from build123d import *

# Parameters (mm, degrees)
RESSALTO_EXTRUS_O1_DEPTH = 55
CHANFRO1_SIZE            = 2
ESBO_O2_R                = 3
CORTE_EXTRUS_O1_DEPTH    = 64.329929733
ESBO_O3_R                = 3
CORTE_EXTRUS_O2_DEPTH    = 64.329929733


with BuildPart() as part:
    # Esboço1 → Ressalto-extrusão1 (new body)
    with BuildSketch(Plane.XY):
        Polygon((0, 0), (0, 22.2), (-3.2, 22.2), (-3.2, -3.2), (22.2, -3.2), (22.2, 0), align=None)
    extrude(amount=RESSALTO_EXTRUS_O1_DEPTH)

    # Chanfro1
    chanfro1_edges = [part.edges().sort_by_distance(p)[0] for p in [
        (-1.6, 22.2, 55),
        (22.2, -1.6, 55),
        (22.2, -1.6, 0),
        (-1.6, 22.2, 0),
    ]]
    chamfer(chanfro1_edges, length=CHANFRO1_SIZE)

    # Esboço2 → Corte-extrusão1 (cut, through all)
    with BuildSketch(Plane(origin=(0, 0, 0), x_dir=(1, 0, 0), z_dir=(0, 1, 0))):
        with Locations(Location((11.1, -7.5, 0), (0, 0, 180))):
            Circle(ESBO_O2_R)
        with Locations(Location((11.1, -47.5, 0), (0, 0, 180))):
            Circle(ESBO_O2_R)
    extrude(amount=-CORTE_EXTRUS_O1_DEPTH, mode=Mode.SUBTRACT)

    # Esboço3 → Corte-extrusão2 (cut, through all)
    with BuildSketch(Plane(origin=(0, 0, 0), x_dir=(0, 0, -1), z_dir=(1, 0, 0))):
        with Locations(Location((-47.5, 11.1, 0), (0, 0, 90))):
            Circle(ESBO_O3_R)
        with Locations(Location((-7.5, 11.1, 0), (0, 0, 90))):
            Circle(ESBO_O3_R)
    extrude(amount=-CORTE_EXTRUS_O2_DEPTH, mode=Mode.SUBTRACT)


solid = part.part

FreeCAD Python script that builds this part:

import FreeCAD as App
import Part
import Sketcher
from FreeCAD import Vector
Q = App.Units.Quantity


def edges_at(feature, points):
    """Names of the edges that pass closest to the given points."""
    edges = feature.Shape.Edges
    near = lambda p: min(range(len(edges)), key=lambda i: edges[i].distToShape(Part.Vertex(*p))[0])
    return sorted({f"Edge{near(p) + 1}" for p in points})

doc = App.newDocument("Part")
body = doc.addObject("PartDesign::Body", "Body")

sketch1 = body.newObject("Sketcher::SketchObject", "Sketch")
sketch1.AttachmentSupport = (doc.getObject("XY_Plane"), [""])
sketch1.MapMode = "FlatFace"
sketch1.addGeometry([
    Part.LineSegment(Vector(0, 0, 0), Vector(0, 22.2, 0)),
    Part.LineSegment(Vector(0, 22.2, 0), Vector(-3.2, 22.2, 0)),
    Part.LineSegment(Vector(-3.2, 22.2, 0), Vector(-3.2, -3.2, 0)),
    Part.LineSegment(Vector(-3.2, -3.2, 0), Vector(22.2, -3.2, 0)),
    Part.LineSegment(Vector(22.2, -3.2, 0), Vector(22.2, 0, 0)),
    Part.LineSegment(Vector(22.2, 0, 0), Vector(0, 0, 0)),
], False)
sketch1.addConstraint([
    Sketcher.Constraint("Coincident", 0, 2, 1, 1),
    Sketcher.Constraint("Coincident", 1, 2, 2, 1),
    Sketcher.Constraint("Coincident", 2, 2, 3, 1),
    Sketcher.Constraint("Coincident", 3, 2, 4, 1),
    Sketcher.Constraint("Coincident", 4, 2, 5, 1),
    Sketcher.Constraint("Coincident", 5, 2, 0, 1),
    Sketcher.Constraint("Vertical", 0),
    Sketcher.Constraint("Horizontal", 1),
    Sketcher.Constraint("Vertical", 2),
    Sketcher.Constraint("Horizontal", 3),
    Sketcher.Constraint("Vertical", 4),
    Sketcher.Constraint("Horizontal", 5),
    Sketcher.Constraint("Coincident", 5, 2, -1, 1),
    Sketcher.Constraint("Equal", 5, 0),
    Sketcher.Constraint("Equal", 3, 2),
    Sketcher.Constraint("DistanceX", 1, 2, 1, 1, Q("3.2 mm")),
    Sketcher.Constraint("DistanceX", 3, 1, 3, 2, Q("25.4 mm")),
])
pad1 = body.newObject("PartDesign::Pad", "Pad")
pad1.Profile = sketch1
pad1.Length = 55
doc.recompute()

chamfer = body.newObject("PartDesign::Chamfer", "Chamfer")
chamfer.Base = (pad1, edges_at(pad1, [
    (-1.6, 22.2, 55),
    (22.2, -1.6, 55),
    (22.2, -1.6, 0),
    (-1.6, 22.2, 0),
]))
chamfer.Size = 2

sketch2 = body.newObject("Sketcher::SketchObject", "Sketch001")
sketch2.AttachmentSupport = (doc.getObject("XZ_Plane"), [""])
sketch2.MapMode = "FlatFace"
sketch2.addGeometry([
    Part.Circle(Vector(11.1, 7.5, 0), Vector(0, 0, 1), 3),
    Part.Circle(Vector(11.1, 47.5, 0), Vector(0, 0, 1), 3),
], False)
sketch2.addConstraint([
    Sketcher.Constraint("Equal", 0, 1),
    Sketcher.Constraint("Vertical", 0, 3, 1, 3),
    Sketcher.Constraint("Diameter", 0, Q("6 mm")),
    Sketcher.Constraint("DistanceY", 0, 3, 1, 3, Q("40 mm")),
    Sketcher.Constraint("DistanceX", -1, 1, 0, 3, Q("11.1 mm")),
    Sketcher.Constraint("DistanceY", -1, 1, 0, 3, Q("7.5 mm")),
])
pocket1 = body.newObject("PartDesign::Pocket", "Pocket")
pocket1.Profile = sketch2
pocket1.Type = "ThroughAll"
pocket1.Reversed = True

sketch3 = body.newObject("Sketcher::SketchObject", "Sketch002")
sketch3.AttachmentSupport = (doc.getObject("YZ_Plane"), [""])
sketch3.MapMode = "FlatFace"
sketch3.addGeometry([
    Part.Circle(Vector(11.1, 47.5, 0), Vector(0, 0, 1), 3),
    Part.Circle(Vector(11.1, 7.5, 0), Vector(0, 0, 1), 3),
], False)
sketch3.addConstraint([
    Sketcher.Constraint("Equal", 0, 1),
    Sketcher.Constraint("Vertical", 0, 3, 1, 3),
    Sketcher.Constraint("Diameter", 0, Q("6 mm")),
    Sketcher.Constraint("DistanceY", 1, 3, 0, 3, Q("40 mm")),
    Sketcher.Constraint("DistanceX", -1, 1, 0, 3, Q("11.1 mm")),
    Sketcher.Constraint("DistanceY", -1, 1, 0, 3, Q("47.5 mm")),
])
pocket2 = body.newObject("PartDesign::Pocket", "Pocket001")
pocket2.Profile = sketch3
pocket2.Type = "ThroughAll"

doc.recompute()
